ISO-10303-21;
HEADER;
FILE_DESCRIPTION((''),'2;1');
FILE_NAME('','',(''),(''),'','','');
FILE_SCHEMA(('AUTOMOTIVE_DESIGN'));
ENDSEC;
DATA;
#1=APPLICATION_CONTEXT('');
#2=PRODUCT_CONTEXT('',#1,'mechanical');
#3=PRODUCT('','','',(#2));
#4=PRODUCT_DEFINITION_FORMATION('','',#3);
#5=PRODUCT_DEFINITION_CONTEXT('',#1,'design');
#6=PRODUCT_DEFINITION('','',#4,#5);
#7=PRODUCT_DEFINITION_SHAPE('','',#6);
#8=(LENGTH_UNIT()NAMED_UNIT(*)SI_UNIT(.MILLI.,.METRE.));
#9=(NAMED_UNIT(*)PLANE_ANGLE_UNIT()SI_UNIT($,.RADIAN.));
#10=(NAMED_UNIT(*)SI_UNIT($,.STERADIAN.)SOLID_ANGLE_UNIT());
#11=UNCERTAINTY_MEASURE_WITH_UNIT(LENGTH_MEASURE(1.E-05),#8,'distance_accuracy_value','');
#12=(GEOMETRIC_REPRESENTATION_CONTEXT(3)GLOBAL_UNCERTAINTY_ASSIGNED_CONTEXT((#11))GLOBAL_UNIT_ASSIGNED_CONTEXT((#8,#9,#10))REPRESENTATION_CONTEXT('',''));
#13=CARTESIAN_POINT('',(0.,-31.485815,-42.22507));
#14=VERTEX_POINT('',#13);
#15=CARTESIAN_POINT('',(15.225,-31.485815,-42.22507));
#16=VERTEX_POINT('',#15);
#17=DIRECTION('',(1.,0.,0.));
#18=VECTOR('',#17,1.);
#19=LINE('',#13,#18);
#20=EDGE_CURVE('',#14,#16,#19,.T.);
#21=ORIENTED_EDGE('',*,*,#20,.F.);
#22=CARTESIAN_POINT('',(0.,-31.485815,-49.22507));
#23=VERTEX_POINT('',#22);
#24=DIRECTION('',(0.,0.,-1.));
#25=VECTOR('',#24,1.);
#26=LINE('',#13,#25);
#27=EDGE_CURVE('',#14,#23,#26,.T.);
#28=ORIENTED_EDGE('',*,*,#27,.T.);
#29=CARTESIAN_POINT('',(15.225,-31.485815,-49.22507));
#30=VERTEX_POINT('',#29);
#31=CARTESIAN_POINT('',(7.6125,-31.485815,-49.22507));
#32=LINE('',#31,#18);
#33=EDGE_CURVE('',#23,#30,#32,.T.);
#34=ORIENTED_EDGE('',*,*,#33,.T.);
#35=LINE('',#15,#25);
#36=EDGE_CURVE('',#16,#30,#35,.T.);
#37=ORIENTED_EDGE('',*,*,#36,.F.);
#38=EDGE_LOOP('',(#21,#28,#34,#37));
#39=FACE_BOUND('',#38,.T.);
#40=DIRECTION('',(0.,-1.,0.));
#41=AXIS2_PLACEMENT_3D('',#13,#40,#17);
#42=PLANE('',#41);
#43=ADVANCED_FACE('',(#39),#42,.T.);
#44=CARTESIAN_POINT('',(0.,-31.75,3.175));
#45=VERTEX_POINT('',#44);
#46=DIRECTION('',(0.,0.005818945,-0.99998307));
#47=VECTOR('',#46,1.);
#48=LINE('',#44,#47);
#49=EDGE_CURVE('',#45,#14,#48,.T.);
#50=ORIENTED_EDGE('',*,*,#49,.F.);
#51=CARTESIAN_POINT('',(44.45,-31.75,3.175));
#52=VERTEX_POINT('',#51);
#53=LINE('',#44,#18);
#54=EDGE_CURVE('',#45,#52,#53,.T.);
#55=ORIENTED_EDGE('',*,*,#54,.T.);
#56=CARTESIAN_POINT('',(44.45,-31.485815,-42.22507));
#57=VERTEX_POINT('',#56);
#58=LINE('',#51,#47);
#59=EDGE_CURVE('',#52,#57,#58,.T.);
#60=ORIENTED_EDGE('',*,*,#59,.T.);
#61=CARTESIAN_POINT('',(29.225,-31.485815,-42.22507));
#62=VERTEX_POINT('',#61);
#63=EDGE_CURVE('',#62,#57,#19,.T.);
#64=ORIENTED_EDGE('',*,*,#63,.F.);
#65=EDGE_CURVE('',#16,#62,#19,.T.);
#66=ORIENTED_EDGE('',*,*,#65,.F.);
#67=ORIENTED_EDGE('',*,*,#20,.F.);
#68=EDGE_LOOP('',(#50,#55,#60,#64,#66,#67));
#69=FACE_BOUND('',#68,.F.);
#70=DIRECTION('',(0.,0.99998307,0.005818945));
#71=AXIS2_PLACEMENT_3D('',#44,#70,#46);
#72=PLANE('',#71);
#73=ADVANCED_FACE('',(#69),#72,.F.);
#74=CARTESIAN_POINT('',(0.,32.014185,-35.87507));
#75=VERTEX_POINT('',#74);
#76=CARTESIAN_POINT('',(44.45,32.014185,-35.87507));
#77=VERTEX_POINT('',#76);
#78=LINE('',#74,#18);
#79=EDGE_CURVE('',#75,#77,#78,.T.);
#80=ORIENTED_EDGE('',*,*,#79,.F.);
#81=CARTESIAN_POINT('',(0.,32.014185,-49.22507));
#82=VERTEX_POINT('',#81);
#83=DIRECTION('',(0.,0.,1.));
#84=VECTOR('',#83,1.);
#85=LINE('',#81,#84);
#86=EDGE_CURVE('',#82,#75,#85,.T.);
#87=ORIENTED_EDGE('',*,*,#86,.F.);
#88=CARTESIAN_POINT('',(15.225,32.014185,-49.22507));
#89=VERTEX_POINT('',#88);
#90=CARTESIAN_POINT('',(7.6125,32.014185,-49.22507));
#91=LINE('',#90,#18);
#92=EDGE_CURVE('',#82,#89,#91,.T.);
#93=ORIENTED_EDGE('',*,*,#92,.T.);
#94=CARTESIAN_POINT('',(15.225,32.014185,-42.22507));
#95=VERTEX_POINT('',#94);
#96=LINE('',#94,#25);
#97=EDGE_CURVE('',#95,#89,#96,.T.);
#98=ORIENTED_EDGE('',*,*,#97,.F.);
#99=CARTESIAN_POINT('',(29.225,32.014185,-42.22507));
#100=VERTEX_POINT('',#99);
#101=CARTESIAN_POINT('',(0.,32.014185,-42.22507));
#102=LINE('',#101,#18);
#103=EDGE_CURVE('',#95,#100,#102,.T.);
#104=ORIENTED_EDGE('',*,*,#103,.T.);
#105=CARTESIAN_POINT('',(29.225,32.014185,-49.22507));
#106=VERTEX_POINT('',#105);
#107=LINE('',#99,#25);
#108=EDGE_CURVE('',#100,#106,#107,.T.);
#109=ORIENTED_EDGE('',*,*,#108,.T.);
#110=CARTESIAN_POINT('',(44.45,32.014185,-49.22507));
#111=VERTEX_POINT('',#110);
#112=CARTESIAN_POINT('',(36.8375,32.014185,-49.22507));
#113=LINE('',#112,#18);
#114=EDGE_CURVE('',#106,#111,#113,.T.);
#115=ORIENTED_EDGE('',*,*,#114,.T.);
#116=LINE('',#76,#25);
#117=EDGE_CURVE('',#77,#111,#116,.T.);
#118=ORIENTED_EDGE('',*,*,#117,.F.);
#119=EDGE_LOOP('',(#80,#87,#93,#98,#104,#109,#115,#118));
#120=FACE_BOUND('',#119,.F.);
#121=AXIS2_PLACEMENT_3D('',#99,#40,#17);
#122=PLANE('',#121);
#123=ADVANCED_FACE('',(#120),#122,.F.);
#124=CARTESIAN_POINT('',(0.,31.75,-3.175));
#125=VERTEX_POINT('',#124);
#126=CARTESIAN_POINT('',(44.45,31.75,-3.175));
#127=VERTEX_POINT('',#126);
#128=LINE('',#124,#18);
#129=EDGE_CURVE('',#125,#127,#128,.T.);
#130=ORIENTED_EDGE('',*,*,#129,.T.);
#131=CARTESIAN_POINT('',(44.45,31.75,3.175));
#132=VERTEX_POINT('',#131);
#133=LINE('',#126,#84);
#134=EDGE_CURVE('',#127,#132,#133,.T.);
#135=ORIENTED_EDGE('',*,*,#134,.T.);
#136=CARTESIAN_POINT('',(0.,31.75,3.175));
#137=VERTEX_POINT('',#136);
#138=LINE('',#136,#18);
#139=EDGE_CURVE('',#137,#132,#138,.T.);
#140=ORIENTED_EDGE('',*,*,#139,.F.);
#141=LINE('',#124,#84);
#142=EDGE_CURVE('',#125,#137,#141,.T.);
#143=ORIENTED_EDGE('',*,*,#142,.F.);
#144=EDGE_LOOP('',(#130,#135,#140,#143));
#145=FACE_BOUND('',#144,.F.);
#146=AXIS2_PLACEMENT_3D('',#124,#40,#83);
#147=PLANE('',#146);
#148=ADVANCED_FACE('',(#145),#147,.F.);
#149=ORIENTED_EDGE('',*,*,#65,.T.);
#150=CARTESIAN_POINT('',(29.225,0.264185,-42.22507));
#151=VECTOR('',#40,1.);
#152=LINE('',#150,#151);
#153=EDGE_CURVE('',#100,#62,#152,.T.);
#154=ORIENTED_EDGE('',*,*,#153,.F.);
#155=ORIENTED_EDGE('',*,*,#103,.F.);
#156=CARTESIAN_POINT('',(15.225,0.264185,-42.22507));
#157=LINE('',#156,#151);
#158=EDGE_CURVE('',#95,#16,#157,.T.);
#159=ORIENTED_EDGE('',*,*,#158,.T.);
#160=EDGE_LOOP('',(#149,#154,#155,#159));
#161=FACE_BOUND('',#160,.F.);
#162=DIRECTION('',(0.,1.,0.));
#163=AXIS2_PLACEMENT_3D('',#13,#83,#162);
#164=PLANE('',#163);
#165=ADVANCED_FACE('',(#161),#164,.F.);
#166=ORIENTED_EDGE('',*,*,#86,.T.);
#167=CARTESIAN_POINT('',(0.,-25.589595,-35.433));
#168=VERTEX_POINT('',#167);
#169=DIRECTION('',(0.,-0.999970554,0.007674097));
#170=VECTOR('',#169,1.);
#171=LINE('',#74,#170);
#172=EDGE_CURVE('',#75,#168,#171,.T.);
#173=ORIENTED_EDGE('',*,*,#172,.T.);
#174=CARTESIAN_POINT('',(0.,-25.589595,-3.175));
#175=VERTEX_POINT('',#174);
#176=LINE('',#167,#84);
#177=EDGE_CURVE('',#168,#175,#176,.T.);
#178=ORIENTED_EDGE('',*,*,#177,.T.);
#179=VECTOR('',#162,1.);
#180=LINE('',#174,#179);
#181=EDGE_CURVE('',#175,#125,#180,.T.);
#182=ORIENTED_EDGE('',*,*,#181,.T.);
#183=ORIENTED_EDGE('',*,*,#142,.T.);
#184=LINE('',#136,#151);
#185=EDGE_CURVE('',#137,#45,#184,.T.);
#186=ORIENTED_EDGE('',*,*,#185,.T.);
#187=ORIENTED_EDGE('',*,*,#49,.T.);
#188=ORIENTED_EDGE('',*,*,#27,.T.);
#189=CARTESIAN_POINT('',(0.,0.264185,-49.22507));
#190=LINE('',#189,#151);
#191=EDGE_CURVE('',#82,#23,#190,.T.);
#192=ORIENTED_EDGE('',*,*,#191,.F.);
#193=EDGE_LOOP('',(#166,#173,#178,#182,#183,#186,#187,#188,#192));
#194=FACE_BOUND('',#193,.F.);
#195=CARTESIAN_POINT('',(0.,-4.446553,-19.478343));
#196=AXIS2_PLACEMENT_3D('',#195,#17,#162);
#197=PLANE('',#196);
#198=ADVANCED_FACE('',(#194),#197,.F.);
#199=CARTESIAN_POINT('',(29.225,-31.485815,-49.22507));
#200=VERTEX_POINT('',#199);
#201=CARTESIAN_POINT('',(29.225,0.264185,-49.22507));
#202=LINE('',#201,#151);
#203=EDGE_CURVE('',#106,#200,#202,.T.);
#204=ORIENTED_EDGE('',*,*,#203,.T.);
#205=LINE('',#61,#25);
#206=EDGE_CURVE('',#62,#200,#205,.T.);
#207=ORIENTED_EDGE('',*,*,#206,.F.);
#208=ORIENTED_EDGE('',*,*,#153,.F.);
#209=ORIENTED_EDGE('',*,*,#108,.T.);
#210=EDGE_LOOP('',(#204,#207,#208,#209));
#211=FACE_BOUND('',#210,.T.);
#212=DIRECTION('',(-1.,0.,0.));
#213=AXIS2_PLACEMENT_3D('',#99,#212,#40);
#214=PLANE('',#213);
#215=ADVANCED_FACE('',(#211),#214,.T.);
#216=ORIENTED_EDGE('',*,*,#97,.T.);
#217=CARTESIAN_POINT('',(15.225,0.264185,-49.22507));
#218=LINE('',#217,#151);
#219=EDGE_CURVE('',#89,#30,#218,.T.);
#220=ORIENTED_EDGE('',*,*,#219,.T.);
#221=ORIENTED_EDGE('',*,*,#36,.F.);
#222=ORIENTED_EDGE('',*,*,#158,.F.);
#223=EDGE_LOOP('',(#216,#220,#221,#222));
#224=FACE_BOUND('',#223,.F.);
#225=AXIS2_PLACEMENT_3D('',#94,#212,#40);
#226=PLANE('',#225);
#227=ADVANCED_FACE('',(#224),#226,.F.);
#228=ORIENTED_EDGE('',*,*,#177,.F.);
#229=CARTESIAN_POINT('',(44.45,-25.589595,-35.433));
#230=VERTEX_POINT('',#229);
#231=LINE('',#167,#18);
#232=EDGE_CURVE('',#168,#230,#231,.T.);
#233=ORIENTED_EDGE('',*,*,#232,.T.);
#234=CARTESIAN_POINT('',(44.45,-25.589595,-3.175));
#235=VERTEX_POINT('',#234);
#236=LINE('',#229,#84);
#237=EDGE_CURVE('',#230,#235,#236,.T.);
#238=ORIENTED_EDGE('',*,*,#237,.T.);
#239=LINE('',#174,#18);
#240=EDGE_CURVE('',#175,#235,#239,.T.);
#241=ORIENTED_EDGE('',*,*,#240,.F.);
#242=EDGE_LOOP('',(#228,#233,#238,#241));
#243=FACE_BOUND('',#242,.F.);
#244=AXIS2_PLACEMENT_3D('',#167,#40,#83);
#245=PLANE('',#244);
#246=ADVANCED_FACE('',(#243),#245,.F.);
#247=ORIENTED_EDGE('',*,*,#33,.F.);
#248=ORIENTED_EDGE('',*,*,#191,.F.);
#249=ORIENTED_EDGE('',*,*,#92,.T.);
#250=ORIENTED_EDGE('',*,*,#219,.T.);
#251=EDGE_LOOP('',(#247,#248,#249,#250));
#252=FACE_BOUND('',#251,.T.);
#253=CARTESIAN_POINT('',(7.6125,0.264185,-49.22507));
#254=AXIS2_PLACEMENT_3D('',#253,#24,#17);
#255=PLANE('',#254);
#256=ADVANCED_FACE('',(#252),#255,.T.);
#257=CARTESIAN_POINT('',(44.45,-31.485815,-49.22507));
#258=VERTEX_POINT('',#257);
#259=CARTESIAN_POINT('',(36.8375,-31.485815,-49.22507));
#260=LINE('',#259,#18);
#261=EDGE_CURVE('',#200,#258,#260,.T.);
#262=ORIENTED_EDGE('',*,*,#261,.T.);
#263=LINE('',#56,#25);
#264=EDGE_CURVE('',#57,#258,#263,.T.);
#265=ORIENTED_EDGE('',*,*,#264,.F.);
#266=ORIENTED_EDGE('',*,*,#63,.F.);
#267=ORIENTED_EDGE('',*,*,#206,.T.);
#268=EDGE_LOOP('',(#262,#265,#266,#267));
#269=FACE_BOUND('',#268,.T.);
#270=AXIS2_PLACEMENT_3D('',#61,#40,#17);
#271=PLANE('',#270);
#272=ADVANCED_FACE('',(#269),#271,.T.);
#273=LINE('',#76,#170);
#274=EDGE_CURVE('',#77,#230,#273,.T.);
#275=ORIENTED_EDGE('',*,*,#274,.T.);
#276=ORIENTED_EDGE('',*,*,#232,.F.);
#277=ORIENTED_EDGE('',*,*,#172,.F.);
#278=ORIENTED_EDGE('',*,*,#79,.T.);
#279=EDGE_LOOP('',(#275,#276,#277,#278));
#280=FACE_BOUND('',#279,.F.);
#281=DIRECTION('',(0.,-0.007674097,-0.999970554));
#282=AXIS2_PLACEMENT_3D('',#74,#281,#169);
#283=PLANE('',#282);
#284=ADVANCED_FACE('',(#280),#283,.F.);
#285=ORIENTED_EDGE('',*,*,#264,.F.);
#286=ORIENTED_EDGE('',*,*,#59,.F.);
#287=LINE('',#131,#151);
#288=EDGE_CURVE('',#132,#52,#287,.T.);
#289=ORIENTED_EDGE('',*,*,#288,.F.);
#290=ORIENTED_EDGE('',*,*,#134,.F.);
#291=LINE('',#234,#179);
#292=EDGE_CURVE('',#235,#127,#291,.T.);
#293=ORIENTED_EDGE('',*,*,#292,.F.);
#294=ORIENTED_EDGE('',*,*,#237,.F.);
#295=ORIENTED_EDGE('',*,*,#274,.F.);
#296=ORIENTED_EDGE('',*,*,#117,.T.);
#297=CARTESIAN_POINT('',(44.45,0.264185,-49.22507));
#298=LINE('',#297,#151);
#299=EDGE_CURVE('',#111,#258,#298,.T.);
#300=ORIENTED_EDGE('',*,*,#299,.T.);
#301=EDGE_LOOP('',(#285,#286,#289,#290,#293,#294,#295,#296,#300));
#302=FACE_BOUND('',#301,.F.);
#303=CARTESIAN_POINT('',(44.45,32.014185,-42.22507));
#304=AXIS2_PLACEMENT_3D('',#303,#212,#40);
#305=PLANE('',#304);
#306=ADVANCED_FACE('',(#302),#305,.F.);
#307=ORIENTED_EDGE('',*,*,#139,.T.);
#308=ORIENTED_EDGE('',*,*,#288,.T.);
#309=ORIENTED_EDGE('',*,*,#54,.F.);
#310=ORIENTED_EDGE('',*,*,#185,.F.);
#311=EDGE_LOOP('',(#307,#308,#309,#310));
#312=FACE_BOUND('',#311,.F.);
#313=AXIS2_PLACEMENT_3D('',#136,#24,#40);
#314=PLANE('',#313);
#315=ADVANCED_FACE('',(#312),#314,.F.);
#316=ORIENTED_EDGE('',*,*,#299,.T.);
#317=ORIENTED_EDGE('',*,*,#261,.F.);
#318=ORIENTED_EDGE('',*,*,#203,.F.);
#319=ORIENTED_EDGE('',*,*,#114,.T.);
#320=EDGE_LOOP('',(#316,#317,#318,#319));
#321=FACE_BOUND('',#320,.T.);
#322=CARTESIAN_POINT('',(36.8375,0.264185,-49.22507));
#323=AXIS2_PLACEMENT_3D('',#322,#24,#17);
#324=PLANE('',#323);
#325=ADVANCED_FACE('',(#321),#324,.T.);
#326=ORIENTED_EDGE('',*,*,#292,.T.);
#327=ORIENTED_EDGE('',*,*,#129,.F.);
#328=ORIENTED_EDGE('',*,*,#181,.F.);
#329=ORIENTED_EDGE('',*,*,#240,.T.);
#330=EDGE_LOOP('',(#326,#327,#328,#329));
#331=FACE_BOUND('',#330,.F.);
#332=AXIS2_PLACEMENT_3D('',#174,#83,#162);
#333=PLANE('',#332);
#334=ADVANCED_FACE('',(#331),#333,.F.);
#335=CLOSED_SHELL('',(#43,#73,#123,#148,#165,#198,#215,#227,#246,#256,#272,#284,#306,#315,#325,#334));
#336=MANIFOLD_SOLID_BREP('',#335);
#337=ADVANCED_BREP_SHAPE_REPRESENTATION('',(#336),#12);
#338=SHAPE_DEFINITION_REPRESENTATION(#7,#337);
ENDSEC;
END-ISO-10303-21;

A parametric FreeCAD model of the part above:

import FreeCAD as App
import Part
import Sketcher

V = App.Vector
Q = App.Units.Quantity


def add_polygon(sketch, points):
    """Adds a closed chain of lines whose ends are joined by coincident constraints."""
    first, n = sketch.GeometryCount, len(points)
    for a, b in zip(points, points[1:] + points[:1]):
        sketch.addGeometry(Part.LineSegment(App.Vector(*a, 0), App.Vector(*b, 0)), False)
    for i in range(n):
        sketch.addConstraint(Sketcher.Constraint("Coincident", first + i, 2, first + (i + 1) % n, 1))

doc = App.newDocument("Part")
body = doc.addObject("PartDesign::Body", "Body")

# Sketch on YZ plane
sketch1 = doc.addObject("Sketcher::SketchObject", "Sketch")
body.addObject(sketch1)
sketch1.AttachmentSupport = (doc.YZ_Plane, [""])
sketch1.MapMode = "FlatFace"
add_polygon(sketch1, [(-25.589595, -3.175), (31.75, -3.175), (31.75, 3.175), (-31.75, 3.175), (-31.485815, -42.22507), (32.014185, -42.22507), (32.014185, -35.87507), (-25.589595, -35.433)])  # lines 0-7
sketch1.addConstraint([
    Sketcher.Constraint("Horizontal", 0),
    Sketcher.Constraint("Vertical", 1),
    Sketcher.Constraint("Horizontal", 2),
    Sketcher.Constraint("Horizontal", 4),
    Sketcher.Constraint("Vertical", 5),
    Sketcher.Constraint("Vertical", 7),
    Sketcher.Constraint("Symmetric", 0, 2, 2, 2, -1, 1),
    Sketcher.Constraint("Equal", 2, 4),
    Sketcher.Constraint("Equal", 1, 5),
    Sketcher.Constraint("DistanceX", 2, 2, 2, 1, Q("2.5 in")),
    Sketcher.Constraint("DistanceY", 1, 1, 1, 2, Q("0.25 in")),
    Sketcher.Constraint("DistanceY", 7, 1, 7, 2, Q("1.27 in")),
    Sketcher.Constraint("Distance", 3, Q("45.400839 mm")),
    Sketcher.Constraint("DistanceX", 0, 1, 0, 2, Q("57.339595 mm")),
    Sketcher.Constraint("DistanceY", 3, 2, -1, 1, Q("42.22507 mm")),
])
pad1 = doc.addObject("PartDesign::Pad", "Pad")
body.addObject(pad1)
pad1.Profile = sketch1
pad1.Length = Q("1.75 in")

# Sketch on XY plane
sketch2 = doc.addObject("Sketcher::SketchObject", "Sketch001")
body.addObject(sketch2)
sketch2.AttachmentSupport = (doc.XY_Plane, [""])
sketch2.MapMode = "FlatFace"
sketch2.AttachmentOffset = App.Placement(V(0, 0, -42.22507), App.Rotation())
add_polygon(sketch2, [(29.225, -31.485815), (29.225, 32.014185), (44.45, 32.014185), (44.45, -31.485815)])  # lines 0-3
add_polygon(sketch2, [(0, -31.485815), (0, 32.014185), (15.225, 32.014185), (15.225, -31.485815)])  # lines 4-7
sketch2.addConstraint([
    Sketcher.Constraint("Vertical", 0),
    Sketcher.Constraint("Horizontal", 1),
    Sketcher.Constraint("Vertical", 2),
    Sketcher.Constraint("Horizontal", 3),
    Sketcher.Constraint("Vertical", 4),
    Sketcher.Constraint("Horizontal", 5),
    Sketcher.Constraint("Vertical", 6),
    Sketcher.Constraint("Horizontal", 7),
    Sketcher.Constraint("PointOnObject", 4, 2, -2),
    Sketcher.Constraint("Horizontal", 1, 2, 4, 2),
    Sketcher.Constraint("Horizontal", 3, 2, 6, 2),
    Sketcher.Constraint("Equal", 3, 5),
    Sketcher.Constraint("DistanceY", 0, 1, 0, 2, Q("2.5 in")),
    Sketcher.Constraint("DistanceX", -1, 1, 1, 2, Q("1.75 in")),
    Sketcher.Constraint("DistanceX", 1, 1, 1, 2, Q("15.225 mm")),
    Sketcher.Constraint("DistanceY", -1, 1, 0, 2, Q("32.014185 mm")),
])
pad2 = doc.addObject("PartDesign::Pad", "Pad001")
body.addObject(pad2)
pad2.Profile = sketch2
pad2.Length = 7
pad2.Reversed = True

doc.recompute()
